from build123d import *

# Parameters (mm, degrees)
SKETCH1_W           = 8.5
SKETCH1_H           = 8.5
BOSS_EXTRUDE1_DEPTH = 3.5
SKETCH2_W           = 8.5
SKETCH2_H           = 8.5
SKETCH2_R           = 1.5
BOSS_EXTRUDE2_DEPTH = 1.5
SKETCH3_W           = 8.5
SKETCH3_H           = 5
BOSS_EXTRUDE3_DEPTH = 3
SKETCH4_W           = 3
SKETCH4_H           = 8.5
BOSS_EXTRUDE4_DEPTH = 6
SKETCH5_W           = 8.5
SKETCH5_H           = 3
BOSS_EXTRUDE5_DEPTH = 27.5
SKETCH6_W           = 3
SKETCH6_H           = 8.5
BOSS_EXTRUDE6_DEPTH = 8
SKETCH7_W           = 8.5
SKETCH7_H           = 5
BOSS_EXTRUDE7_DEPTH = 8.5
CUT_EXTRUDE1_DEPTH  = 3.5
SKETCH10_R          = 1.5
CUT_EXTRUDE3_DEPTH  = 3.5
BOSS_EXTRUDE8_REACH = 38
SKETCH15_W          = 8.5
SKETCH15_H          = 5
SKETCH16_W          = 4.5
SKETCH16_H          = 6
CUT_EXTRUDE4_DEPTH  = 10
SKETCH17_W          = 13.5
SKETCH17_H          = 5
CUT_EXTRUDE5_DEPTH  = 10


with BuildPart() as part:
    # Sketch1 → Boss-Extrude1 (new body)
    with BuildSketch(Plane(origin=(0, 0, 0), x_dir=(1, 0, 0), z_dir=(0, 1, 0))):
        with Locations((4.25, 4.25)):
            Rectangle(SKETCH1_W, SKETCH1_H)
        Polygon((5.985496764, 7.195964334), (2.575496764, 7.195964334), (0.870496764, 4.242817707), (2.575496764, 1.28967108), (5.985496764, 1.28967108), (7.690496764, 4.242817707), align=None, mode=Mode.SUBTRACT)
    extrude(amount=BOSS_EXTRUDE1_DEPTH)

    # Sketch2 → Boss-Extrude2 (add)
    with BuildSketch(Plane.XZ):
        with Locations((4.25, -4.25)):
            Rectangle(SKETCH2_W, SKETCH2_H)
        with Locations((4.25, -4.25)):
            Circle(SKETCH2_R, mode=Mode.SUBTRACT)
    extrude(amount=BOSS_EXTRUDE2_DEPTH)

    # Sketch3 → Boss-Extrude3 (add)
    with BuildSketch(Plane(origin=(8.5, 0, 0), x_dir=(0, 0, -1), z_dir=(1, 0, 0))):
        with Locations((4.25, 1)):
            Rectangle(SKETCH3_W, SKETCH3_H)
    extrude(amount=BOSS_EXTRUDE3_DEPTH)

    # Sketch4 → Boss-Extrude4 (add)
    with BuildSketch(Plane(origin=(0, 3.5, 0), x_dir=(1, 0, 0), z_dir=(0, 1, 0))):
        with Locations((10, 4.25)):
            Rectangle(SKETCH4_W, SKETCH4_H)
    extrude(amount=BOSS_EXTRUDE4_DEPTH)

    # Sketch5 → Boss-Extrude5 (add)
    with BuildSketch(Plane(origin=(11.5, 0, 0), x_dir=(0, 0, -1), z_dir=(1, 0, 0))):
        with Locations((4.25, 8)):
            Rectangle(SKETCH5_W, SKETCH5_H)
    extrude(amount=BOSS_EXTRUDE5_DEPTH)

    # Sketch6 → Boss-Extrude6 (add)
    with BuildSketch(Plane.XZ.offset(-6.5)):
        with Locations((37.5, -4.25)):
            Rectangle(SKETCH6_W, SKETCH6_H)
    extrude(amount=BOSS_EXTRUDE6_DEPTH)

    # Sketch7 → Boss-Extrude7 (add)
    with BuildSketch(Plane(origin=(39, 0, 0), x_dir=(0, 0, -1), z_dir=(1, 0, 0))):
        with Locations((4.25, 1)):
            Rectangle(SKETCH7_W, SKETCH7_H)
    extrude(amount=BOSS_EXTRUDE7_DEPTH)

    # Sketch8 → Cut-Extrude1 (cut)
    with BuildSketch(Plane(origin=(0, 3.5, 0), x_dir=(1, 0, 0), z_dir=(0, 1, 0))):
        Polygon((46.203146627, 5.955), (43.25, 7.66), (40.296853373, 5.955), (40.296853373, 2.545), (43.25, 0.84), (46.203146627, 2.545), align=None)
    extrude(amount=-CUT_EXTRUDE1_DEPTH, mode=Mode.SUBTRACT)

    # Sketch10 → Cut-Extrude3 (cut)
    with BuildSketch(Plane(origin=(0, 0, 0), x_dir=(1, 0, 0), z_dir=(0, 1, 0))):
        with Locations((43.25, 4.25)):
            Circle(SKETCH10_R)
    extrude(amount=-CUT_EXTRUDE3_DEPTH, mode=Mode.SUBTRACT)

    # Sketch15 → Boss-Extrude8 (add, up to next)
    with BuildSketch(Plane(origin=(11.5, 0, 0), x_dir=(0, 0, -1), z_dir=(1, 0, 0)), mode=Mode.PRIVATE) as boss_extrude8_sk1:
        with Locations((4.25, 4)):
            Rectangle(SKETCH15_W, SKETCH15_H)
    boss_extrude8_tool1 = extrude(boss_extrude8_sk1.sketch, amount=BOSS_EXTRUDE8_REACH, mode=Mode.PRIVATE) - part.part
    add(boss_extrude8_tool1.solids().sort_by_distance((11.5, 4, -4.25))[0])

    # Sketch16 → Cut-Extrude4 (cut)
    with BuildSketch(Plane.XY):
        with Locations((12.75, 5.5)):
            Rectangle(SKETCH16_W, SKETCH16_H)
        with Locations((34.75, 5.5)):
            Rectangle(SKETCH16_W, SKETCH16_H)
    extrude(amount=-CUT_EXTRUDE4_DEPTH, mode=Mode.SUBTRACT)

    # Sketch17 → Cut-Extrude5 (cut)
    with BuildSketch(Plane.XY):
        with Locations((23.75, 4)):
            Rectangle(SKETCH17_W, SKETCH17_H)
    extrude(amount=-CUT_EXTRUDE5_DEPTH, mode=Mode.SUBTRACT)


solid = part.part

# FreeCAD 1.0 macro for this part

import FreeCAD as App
import Part
import Sketcher
from FreeCAD import Vector
Q = App.Units.Quantity


def add_polygon(sketch, points):
    """Adds a closed chain of lines whose ends are joined by coincident constraints."""
    first, n = sketch.GeometryCount, len(points)
    for a, b in zip(points, points[1:] + points[:1]):
        sketch.addGeometry(Part.LineSegment(App.Vector(*a, 0), App.Vector(*b, 0)), False)
    for i in range(n):
        sketch.addConstraint(Sketcher.Constraint("Coincident", first + i, 2, first + (i + 1) % n, 1))

doc = App.newDocument("Part")
body = doc.addObject("PartDesign::Body", "Body")

# Sketch on XZ plane
sketch1 = body.newObject("Sketcher::SketchObject", "Sketch")
sketch1.AttachmentSupport = (doc.getObject("XZ_Plane"), [""])
sketch1.MapMode = "FlatFace"
add_polygon(sketch1, [(0, -8.5), (0, 0), (8.5, 0), (8.5, -8.5)])  # lines 0-3
add_polygon(sketch1, [(2.6, -7.2), (6, -7.2), (7.7, -4.2), (6, -1.3), (2.6, -1.3), (0.9, -4.2)])  # lines 4-9
sketch1.addConstraint([
    Sketcher.Constraint("Vertical", 0),
    Sketcher.Constraint("Horizontal", 1),
    Sketcher.Constraint("Vertical", 2),
    Sketcher.Constraint("Horizontal", 3),
    Sketcher.Constraint("Horizontal", 4),
    Sketcher.Constraint("Horizontal", 7),
    Sketcher.Constraint("Coincident", 0, 2, -1, 1),
    Sketcher.Constraint("Parallel", 5, 8),
    Sketcher.Constraint("Parallel", 6, 9),
    Sketcher.Constraint("Horizontal", 5, 2, 8, 2),
    Sketcher.Constraint("Vertical", 4, 2, 6, 2),
    Sketcher.Constraint("Vertical", 7, 2, 9, 2),
    Sketcher.Constraint("Equal", 3, 0),
    Sketcher.Constraint("Angle", 5, Q("60 deg")),
    Sketcher.Constraint("DistanceX", 1, 1, 1, 2, Q("8.5 mm")),
    Sketcher.Constraint("DistanceX", 4, 1, 4, 2, Q("3.41 mm")),
    Sketcher.Constraint("Distance", 5, Q("3.41 mm")),
    Sketcher.Constraint("DistanceY", 6, 2, -1, 1, Q("1.289671 mm")),
    Sketcher.Constraint("DistanceX", -1, 1, 4, 2, Q("5.985497 mm")),
])
pad1 = body.newObject("PartDesign::Pad", "Pad")
pad1.Profile = sketch1
pad1.Length = 3.5
pad1.Reversed = True

# Sketch on XZ plane
sketch2 = body.newObject("Sketcher::SketchObject", "Sketch001")
sketch2.AttachmentSupport = (doc.getObject("XZ_Plane"), [""])
sketch2.MapMode = "FlatFace"
add_polygon(sketch2, [(0, 0), (0, -8.5), (8.5, -8.5), (8.5, 0)])  # lines 0-3
sketch2.addGeometry(Part.Circle(Vector(4.2, -4.2, 0), Vector(0, 0, 1), 1.5), False)  # 4
sketch2.addConstraint([
    Sketcher.Constraint("Vertical", 0),
    Sketcher.Constraint("Horizontal", 1),
    Sketcher.Constraint("Vertical", 2),
    Sketcher.Constraint("Horizontal", 3),
    Sketcher.Constraint("Coincident", 3, 2, -1, 1),
    Sketcher.Constraint("Equal", 3, 0),
    Sketcher.Constraint("Diameter", 4, Q("3 mm")),
    Sketcher.Constraint("DistanceX", 1, 1, 1, 2, Q("8.5 mm")),
    Sketcher.Constraint("DistanceX", -1, 1, 4, 3, Q("4.25 mm")),
    Sketcher.Constraint("DistanceY", 4, 3, -1, 1, Q("4.25 mm")),
])
pad2 = body.newObject("PartDesign::Pad", "Pad001")
pad2.Profile = sketch2
pad2.Length = 1.5

# Sketch on YZ plane
sketch3 = body.newObject("Sketcher::SketchObject", "Sketch002")
sketch3.AttachmentSupport = (doc.getObject("YZ_Plane"), [""])
sketch3.MapMode = "FlatFace"
sketch3.AttachmentOffset = App.Placement(Vector(0, 0, 8.5), App.Rotation())
add_polygon(sketch3, [(4, 0), (-2, 0), (-2, -8), (4, -8)])  # lines 0-3
sketch3.addConstraint([
    Sketcher.Constraint("Horizontal", 0),
    Sketcher.Constraint("Vertical", 1),
    Sketcher.Constraint("Horizontal", 2),
    Sketcher.Constraint("Vertical", 3),
    Sketcher.Constraint("PointOnObject", 0, 2, -1),
    Sketcher.Constraint("DistanceX", 0, 2, 0, 1, Q("5 mm")),
    Sketcher.Constraint("DistanceY", 1, 2, 1, 1, Q("8.5 mm")),
    Sketcher.Constraint("DistanceX", 0, 2, -1, 1, Q("1.5 mm")),
])
pad3 = body.newObject("PartDesign::Pad", "Pad002")
pad3.Profile = sketch3
pad3.Length = 3

# Sketch on XZ plane
sketch4 = body.newObject("Sketcher::SketchObject", "Sketch003")
sketch4.AttachmentSupport = (doc.getObject("XZ_Plane"), [""])
sketch4.MapMode = "FlatFace"
sketch4.AttachmentOffset = App.Placement(Vector(0, 0, -3.5), App.Rotation())
add_polygon(sketch4, [(8.5, -8.5), (8.5, 0), (11.5, 0), (11.5, -8.5)])  # lines 0-3
sketch4.addConstraint([
    Sketcher.Constraint("Vertical", 0),
    Sketcher.Constraint("Horizontal", 1),
    Sketcher.Constraint("Vertical", 2),
    Sketcher.Constraint("Horizontal", 3),
    Sketcher.Constraint("PointOnObject", 0, 2, -1),
    Sketcher.Constraint("DistanceX", 1, 1, 1, 2, Q("3 mm")),
    Sketcher.Constraint("DistanceY", 0, 1, 0, 2, Q("8.5 mm")),
    Sketcher.Constraint("DistanceX", -1, 1, 0, 2, Q("8.5 mm")),
])
pad4 = body.newObject("PartDesign::Pad", "Pad003")
pad4.Profile = sketch4
pad4.Length = 6
pad4.Reversed = True

# Sketch on YZ plane
sketch5 = body.newObject("Sketcher::SketchObject", "Sketch004")
sketch5.AttachmentSupport = (doc.getObject("YZ_Plane"), [""])
sketch5.MapMode = "FlatFace"
sketch5.AttachmentOffset = App.Placement(Vector(0, 0, 11.5), App.Rotation())
add_polygon(sketch5, [(9.5, 0), (6.5, 0), (6.5, -8.5), (9.5, -8.5)])  # lines 0-3
sketch5.addConstraint([
    Sketcher.Constraint("Horizontal", 0),
    Sketcher.Constraint("Vertical", 1),
    Sketcher.Constraint("Horizontal", 2),
    Sketcher.Constraint("Vertical", 3),
    Sketcher.Constraint("PointOnObject", 0, 2, -1),
    Sketcher.Constraint("DistanceX", 0, 2, 0, 1, Q("3 mm")),
    Sketcher.Constraint("DistanceY", 1, 2, 1, 1, Q("8.5 mm")),
    Sketcher.Constraint("DistanceX", -1, 1, 0, 2, Q("6.5 mm")),
])
pad5 = body.newObject("PartDesign::Pad", "Pad004")
pad5.Profile = sketch5
pad5.Length = 27.5

# Sketch on XZ plane
sketch6 = body.newObject("Sketcher::SketchObject", "Sketch005")
sketch6.AttachmentSupport = (doc.getObject("XZ_Plane"), [""])
sketch6.MapMode = "FlatFace"
sketch6.AttachmentOffset = App.Placement(Vector(0, 0, -6.5), App.Rotation())
add_polygon(sketch6, [(36, 0), (36, -8.5), (39, -8.5), (39, 0)])  # lines 0-3
sketch6.addConstraint([
    Sketcher.Constraint("Vertical", 0),
    Sketcher.Constraint("Horizontal", 1),
    Sketcher.Constraint("Vertical", 2),
    Sketcher.Constraint("Horizontal", 3),
    Sketcher.Constraint("PointOnObject", 2, 2, -1),
    Sketcher.Constraint("DistanceX", 1, 1, 1, 2, Q("3 mm")),
    Sketcher.Constraint("DistanceY", 0, 2, 0, 1, Q("8.5 mm")),
    Sketcher.Constraint("DistanceX", -1, 1, 0, 2, Q("36 mm")),
])
pad6 = body.newObject("PartDesign::Pad", "Pad005")
pad6.Profile = sketch6
pad6.Length = 8

# Sketch on YZ plane
sketch7 = body.newObject("Sketcher::SketchObject", "Sketch006")
sketch7.AttachmentSupport = (doc.getObject("YZ_Plane"), [""])
sketch7.MapMode = "FlatFace"
sketch7.AttachmentOffset = App.Placement(Vector(0, 0, 39), App.Rotation())
add_polygon(sketch7, [(4, 0), (-2, 0), (-2, -8), (4, -8)])  # lines 0-3
sketch7.addConstraint([
    Sketcher.Constraint("Horizontal", 0),
    Sketcher.Constraint("Vertical", 1),
    Sketcher.Constraint("Horizontal", 2),
    Sketcher.Constraint("Vertical", 3),
    Sketcher.Constraint("PointOnObject", 0, 2, -1),
    Sketcher.Constraint("DistanceX", 0, 2, 0, 1, Q("5 mm")),
    Sketcher.Constraint("DistanceY", 1, 2, 1, 1, Q("8.5 mm")),
    Sketcher.Constraint("DistanceX", 0, 2, -1, 1, Q("1.5 mm")),
])
pad7 = body.newObject("PartDesign::Pad", "Pad006")
pad7.Profile = sketch7
pad7.Length = 8.5

# Sketch on XZ plane
sketch8 = body.newObject("Sketcher::SketchObject", "Sketch007")
sketch8.AttachmentSupport = (doc.getObject("XZ_Plane"), [""])
sketch8.MapMode = "FlatFace"
sketch8.AttachmentOffset = App.Placement(Vector(0, 0, -3.5), App.Rotation())
add_polygon(sketch8, [(46.2, -6), (43.2, -7.7), (40.3, -6), (40.3, -2.5), (43.2, -0.8), (46.2, -2.5)])  # lines 0-5
sketch8.addConstraint([
    Sketcher.Constraint("Vertical", 2),
    Sketcher.Constraint("Vertical", 5),
    Sketcher.Constraint("Parallel", 0, 3),
    Sketcher.Constraint("Parallel", 1, 4),
    Sketcher.Constraint("Horizontal", 2, 2, 4, 2),
    Sketcher.Constraint("Horizontal", 1, 2, 5, 2),
    Sketcher.Constraint("Vertical", 0, 2, 3, 2),
    Sketcher.Constraint("Angle", 0, Q("-150 deg")),
    Sketcher.Constraint("DistanceY", 2, 1, 2, 2, Q("3.41 mm")),
    Sketcher.Constraint("Distance", 0, Q("3.41 mm")),
    Sketcher.Constraint("DistanceX", -1, 1, 0, 2, Q("43.25 mm")),
    Sketcher.Constraint("DistanceY", 0, 2, -1, 1, Q("7.66 mm")),
])
pocket1 = body.newObject("PartDesign::Pocket", "Pocket")
pocket1.Profile = sketch8
pocket1.Length = 3.5
pocket1.Reversed = True

# Sketch on XZ plane
sketch9 = body.newObject("Sketcher::SketchObject", "Sketch008")
sketch9.AttachmentSupport = (doc.getObject("XZ_Plane"), [""])
sketch9.MapMode = "FlatFace"
sketch9.addGeometry(Part.Circle(Vector(43.2, -4.2, 0), Vector(0, 0, 1), 1.5), False)
sketch9.addConstraint([
    Sketcher.Constraint("Diameter", 0, Q("3 mm")),
    Sketcher.Constraint("DistanceX", -1, 1, 0, 3, Q("43.25 mm")),
    Sketcher.Constraint("DistanceY", 0, 3, -1, 1, Q("4.25 mm")),
])
pocket2 = body.newObject("PartDesign::Pocket", "Pocket001")
pocket2.Profile = sketch9
pocket2.Length = 3.5
pocket2.Reversed = True

# Sketch on YZ plane
sketch10 = body.newObject("Sketcher::SketchObject", "Sketch009")
sketch10.AttachmentSupport = (doc.getObject("YZ_Plane"), [""])
sketch10.MapMode = "FlatFace"
sketch10.AttachmentOffset = App.Placement(Vector(0, 0, 11.5), App.Rotation())
add_polygon(sketch10, [(6, 0), (2, 0), (2, -8), (6, -8)])  # lines 0-3
sketch10.addConstraint([
    Sketcher.Constraint("Horizontal", 0),
    Sketcher.Constraint("Vertical", 1),
    Sketcher.Constraint("Horizontal", 2),
    Sketcher.Constraint("Vertical", 3),
    Sketcher.Constraint("PointOnObject", 0, 2, -1),
    Sketcher.Constraint("DistanceX", 0, 2, 0, 1, Q("5 mm")),
    Sketcher.Constraint("DistanceY", 1, 2, 1, 1, Q("8.5 mm")),
    Sketcher.Constraint("DistanceX", -1, 1, 0, 2, Q("1.5 mm")),
])
pad8 = body.newObject("PartDesign::Pad", "Pad007")
pad8.Profile = sketch10
pad8.Type = "UpToFirst"

# Sketch on XY plane
sketch11 = body.newObject("Sketcher::SketchObject", "Sketch010")
sketch11.AttachmentSupport = (doc.getObject("XY_Plane"), [""])
sketch11.MapMode = "FlatFace"
add_polygon(sketch11, [(10.5, 8.5), (10.5, 2.5), (15, 2.5), (15, 8.5)])  # lines 0-3
add_polygon(sketch11, [(32.5, 8.5), (32.5, 2.5), (37, 2.5), (37, 8.5)])  # lines 4-7
sketch11.addConstraint([
    Sketcher.Constraint("Vertical", 0),
    Sketcher.Constraint("Horizontal", 1),
    Sketcher.Constraint("Vertical", 2),
    Sketcher.Constraint("Horizontal", 3),
    Sketcher.Constraint("Vertical", 4),
    Sketcher.Constraint("Horizontal", 5),
    Sketcher.Constraint("Vertical", 6),
    Sketcher.Constraint("Horizontal", 7),
    Sketcher.Constraint("Horizontal", 1, 2, 4, 2),
    Sketcher.Constraint("Horizontal", 3, 2, 6, 2),
    Sketcher.Constraint("Equal", 3, 5),
    Sketcher.Constraint("DistanceY", 0, 2, 0, 1, Q("6 mm")),
    Sketcher.Constraint("DistanceX", 1, 1, 1, 2, Q("4.5 mm")),
    Sketcher.Constraint("DistanceX", -1, 1, 1, 2, Q("15 mm")),
    Sketcher.Constraint("DistanceX", -1, 1, 5, 2, Q("37 mm")),
    Sketcher.Constraint("DistanceY", -1, 1, 0, 2, Q("2.5 mm")),
])
pocket3 = body.newObject("PartDesign::Pocket", "Pocket002")
pocket3.Profile = sketch11
pocket3.Length = 10

# Sketch on XY plane
sketch12 = body.newObject("Sketcher::SketchObject", "Sketch011")
sketch12.AttachmentSupport = (doc.getObject("XY_Plane"), [""])
sketch12.MapMode = "FlatFace"
add_polygon(sketch12, [(17, 6), (17, 2), (30, 2), (30, 6)])  # lines 0-3
sketch12.addConstraint([
    Sketcher.Constraint("Vertical", 0),
    Sketcher.Constraint("Horizontal", 1),
    Sketcher.Constraint("Vertical", 2),
    Sketcher.Constraint("Horizontal", 3),
    Sketcher.Constraint("DistanceY", 0, 2, 0, 1, Q("5 mm")),
    Sketcher.Constraint("DistanceX", 1, 1, 1, 2, Q("13.5 mm")),
    Sketcher.Constraint("DistanceX", -1, 1, 0, 2, Q("17 mm")),
    Sketcher.Constraint("DistanceY", -1, 1, 0, 2, Q("1.5 mm")),
])
pocket4 = body.newObject("PartDesign::Pocket", "Pocket003")
pocket4.Profile = sketch12
pocket4.Length = 10

doc.recompute()
